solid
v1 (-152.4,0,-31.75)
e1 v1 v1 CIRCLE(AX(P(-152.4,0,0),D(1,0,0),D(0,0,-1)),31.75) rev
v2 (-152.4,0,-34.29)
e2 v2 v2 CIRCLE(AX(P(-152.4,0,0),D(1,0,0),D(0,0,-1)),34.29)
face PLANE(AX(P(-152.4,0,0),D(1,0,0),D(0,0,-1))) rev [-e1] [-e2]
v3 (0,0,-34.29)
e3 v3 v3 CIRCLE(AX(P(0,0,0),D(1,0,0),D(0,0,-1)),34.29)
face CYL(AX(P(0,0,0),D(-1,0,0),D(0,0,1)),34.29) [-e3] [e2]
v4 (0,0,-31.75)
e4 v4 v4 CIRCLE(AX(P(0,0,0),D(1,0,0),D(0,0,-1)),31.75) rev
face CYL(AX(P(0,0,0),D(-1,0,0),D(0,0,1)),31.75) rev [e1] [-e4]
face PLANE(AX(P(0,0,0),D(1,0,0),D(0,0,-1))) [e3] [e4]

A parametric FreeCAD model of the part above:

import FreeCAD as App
import Part
import Sketcher
Q = App.Units.Quantity

doc = App.newDocument("Part")
body = doc.addObject("PartDesign::Body", "Body")

# Sketch on YZ plane
sketch1 = doc.addObject("Sketcher::SketchObject", "Sketch")
body.addObject(sketch1)
sketch1.AttachmentSupport = (doc.YZ_Plane, [""])
sketch1.MapMode = "FlatFace"
sketch1.addGeometry([
    Part.Circle(App.Vector(0, 0, 0), App.Vector(0, 0, 1), 34.29),
    Part.Circle(App.Vector(0, 0, 0), App.Vector(0, 0, 1), 31.75),
], False)
sketch1.addConstraint([
    Sketcher.Constraint("Coincident", 0, 3, -1, 1),
    Sketcher.Constraint("Coincident", 1, 3, -1, 1),
    Sketcher.Constraint("Diameter", 0, Q("2.7 in")),
    Sketcher.Constraint("Diameter", 1, Q("2.5 in")),
])

# Sketch on XY plane
sketch2 = doc.addObject("Sketcher::SketchObject", "Sketch001")
body.addObject(sketch2)
sketch2.AttachmentSupport = (doc.XY_Plane, [""])
sketch2.MapMode = "FlatFace"
sketch2.addGeometry(Part.LineSegment(App.Vector(0, 0, 0), App.Vector(-152.4, 0, 0)), False)
sketch2.addConstraint([
    Sketcher.Constraint("Horizontal", 0),
    Sketcher.Constraint("Coincident", 0, 1, -1, 1),
    Sketcher.Constraint("DistanceX", 0, 2, 0, 1, Q("6 in")),
])
doc.recompute()

additivepipe = doc.addObject("PartDesign::AdditivePipe", "AdditivePipe")
body.addObject(additivepipe)
additivepipe.Profile = sketch1
additivepipe.Spine = (sketch2, ["Edge1"])

doc.recompute()
